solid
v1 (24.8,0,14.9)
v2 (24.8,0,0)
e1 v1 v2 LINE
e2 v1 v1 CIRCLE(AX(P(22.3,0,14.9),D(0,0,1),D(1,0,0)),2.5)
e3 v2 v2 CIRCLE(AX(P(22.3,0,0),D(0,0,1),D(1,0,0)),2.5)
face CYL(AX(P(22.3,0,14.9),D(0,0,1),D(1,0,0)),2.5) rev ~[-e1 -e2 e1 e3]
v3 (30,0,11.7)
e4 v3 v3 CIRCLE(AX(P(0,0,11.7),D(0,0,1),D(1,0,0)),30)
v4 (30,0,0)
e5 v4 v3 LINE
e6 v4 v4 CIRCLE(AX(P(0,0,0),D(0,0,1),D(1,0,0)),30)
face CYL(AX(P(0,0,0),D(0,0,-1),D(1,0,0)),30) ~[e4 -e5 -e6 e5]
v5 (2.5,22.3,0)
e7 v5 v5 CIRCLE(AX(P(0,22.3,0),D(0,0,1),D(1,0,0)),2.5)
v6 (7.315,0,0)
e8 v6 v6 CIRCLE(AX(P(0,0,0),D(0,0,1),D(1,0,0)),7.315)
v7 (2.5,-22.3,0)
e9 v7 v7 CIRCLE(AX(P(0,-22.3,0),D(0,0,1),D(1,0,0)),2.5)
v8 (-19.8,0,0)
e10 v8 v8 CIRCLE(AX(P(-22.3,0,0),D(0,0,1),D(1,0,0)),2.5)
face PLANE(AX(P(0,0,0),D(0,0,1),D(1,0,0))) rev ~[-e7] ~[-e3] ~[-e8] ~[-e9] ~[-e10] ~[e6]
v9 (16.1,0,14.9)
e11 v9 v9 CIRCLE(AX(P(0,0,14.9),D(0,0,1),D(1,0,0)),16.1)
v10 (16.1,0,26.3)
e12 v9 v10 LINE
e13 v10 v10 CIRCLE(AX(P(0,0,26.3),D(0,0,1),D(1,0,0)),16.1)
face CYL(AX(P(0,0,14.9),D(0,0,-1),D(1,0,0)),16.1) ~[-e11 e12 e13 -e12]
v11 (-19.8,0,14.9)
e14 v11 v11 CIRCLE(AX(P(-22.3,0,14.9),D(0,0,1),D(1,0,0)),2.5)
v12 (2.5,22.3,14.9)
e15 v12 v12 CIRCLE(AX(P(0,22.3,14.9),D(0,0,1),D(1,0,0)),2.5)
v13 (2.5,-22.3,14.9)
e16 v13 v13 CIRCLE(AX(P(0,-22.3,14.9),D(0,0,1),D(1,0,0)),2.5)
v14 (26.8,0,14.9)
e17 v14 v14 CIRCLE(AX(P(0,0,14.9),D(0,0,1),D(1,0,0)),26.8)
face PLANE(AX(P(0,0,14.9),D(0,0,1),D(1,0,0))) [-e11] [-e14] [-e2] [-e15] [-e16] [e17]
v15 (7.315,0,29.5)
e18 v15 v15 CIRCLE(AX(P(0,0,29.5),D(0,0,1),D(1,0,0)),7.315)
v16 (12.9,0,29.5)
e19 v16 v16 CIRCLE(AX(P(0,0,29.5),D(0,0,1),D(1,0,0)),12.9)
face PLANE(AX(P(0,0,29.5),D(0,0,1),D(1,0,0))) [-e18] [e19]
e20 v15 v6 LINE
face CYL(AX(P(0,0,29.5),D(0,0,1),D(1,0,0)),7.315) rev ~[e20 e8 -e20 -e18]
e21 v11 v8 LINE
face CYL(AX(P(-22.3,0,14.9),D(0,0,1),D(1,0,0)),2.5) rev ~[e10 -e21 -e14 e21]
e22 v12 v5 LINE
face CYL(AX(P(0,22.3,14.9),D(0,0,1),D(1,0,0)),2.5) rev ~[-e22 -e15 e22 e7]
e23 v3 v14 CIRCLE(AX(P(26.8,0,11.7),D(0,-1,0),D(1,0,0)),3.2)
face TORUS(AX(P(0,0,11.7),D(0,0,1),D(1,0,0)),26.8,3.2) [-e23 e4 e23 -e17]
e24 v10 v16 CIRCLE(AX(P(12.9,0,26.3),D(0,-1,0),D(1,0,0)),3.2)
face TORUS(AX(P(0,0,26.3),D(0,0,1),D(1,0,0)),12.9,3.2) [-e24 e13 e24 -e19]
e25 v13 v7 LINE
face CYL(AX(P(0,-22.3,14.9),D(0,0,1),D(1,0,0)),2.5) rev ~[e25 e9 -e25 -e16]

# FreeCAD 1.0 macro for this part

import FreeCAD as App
import Part
import Sketcher
from FreeCAD import Vector
Q = App.Units.Quantity


def edges_at(feature, points):
    """Names of the edges that pass closest to the given points."""
    edges = feature.Shape.Edges
    near = lambda p: min(range(len(edges)), key=lambda i: edges[i].distToShape(Part.Vertex(*p))[0])
    return sorted({f"Edge{near(p) + 1}" for p in points})

doc = App.newDocument("Part")
params = doc.addObject("Spreadsheet::Sheet", "Params")
for row, (alias, value) in enumerate([
    ("sketch1_diameter", "60 mm"),
    ("pad1_length", "14.9 mm"),
    ("sketch2_diameter", "32.2 mm"),
    ("pad2_length", "14.6 mm"),
    ("sketch3_diameter", "5 mm"),
    ("pocket1_length", "25 mm"),
    ("fillet_radius", "3.2 mm"),
    ("sketch4_diameter", "14.63 mm"),
    ("pocket2_length", "50 mm"),
], start=1):
    params.set(f"A{row}", alias)
    params.set(f"B{row}", "=" + value)
    params.setAlias(f"B{row}", alias)

body = doc.addObject("PartDesign::Body", "Body")

sketch1 = body.newObject("Sketcher::SketchObject", "Sketch")
sketch1.AttachmentSupport = (doc.getObject("XY_Plane"), [""])
sketch1.MapMode = "FlatFace"
sketch1.addGeometry(Part.Circle(Vector(0, 0, 0), Vector(0, 0, 1), 30), False)
sketch1.addConstraint([
    Sketcher.Constraint("Coincident", 0, 3, -1, 1),
    Sketcher.Constraint("Diameter", 0, Q("60 mm")),
])
sketch1.setExpression("Constraints[1]", "Params.sketch1_diameter")
pad1 = body.newObject("PartDesign::Pad", "Pad")
pad1.Profile = sketch1
pad1.setExpression("Length", "Params.pad1_length")

sketch2 = body.newObject("Sketcher::SketchObject", "Sketch001")
sketch2.AttachmentSupport = (doc.getObject("XY_Plane"), [""])
sketch2.MapMode = "FlatFace"
sketch2.AttachmentOffset = App.Placement(Vector(0, 0, 14.9), App.Rotation())
sketch2.addGeometry(Part.Circle(Vector(0, 0, 0), Vector(0, 0, 1), 16.1), False)
sketch2.addConstraint([
    Sketcher.Constraint("Coincident", 0, 3, -1, 1),
    Sketcher.Constraint("Diameter", 0, Q("32.2 mm")),
])
sketch2.setExpression("Constraints[1]", "Params.sketch2_diameter")
pad2 = body.newObject("PartDesign::Pad", "Pad001")
pad2.Profile = sketch2
pad2.setExpression("Length", "Params.pad2_length")

sketch3 = body.newObject("Sketcher::SketchObject", "Sketch002")
sketch3.AttachmentSupport = (doc.getObject("XY_Plane"), [""])
sketch3.MapMode = "FlatFace"
sketch3.AttachmentOffset = App.Placement(Vector(0, 0, 14.9), App.Rotation())
sketch3.addGeometry([
    Part.Circle(Vector(-22.3, 0, 0), Vector(0, 0, 1), 2.5),
    Part.Circle(Vector(0, 22.3, 0), Vector(0, 0, 1), 2.5),
    Part.Circle(Vector(22.3, 0, 0), Vector(0, 0, 1), 2.5),
    Part.Circle(Vector(0, -22.3, 0), Vector(0, 0, 1), 2.5),
], False)
sketch3.addConstraint([
    Sketcher.Constraint("Equal", 0, 1),
    Sketcher.Constraint("Equal", 1, 2),
    Sketcher.Constraint("Equal", 2, 3),
    Sketcher.Constraint("Symmetric", 0, 3, 2, 3, -1, 1),
    Sketcher.Constraint("Symmetric", 1, 3, 3, 3, -1, 1),
    Sketcher.Constraint("PointOnObject", 0, 3, -1),
    Sketcher.Constraint("PointOnObject", 1, 3, -2),
    Sketcher.Constraint("Diameter", 0, Q("5 mm")),
    Sketcher.Constraint("DistanceX", 0, 3, -1, 1, Q("22.3 mm")),
    Sketcher.Constraint("DistanceY", -1, 1, 1, 3, Q("22.3 mm")),
])
sketch3.setExpression("Constraints[7]", "Params.sketch3_diameter")
pocket1 = body.newObject("PartDesign::Pocket", "Pocket")
pocket1.Profile = sketch3
pocket1.setExpression("Length", "Params.pocket1_length")
doc.recompute()

fillet = body.newObject("PartDesign::Fillet", "Fillet")
fillet.Base = (pocket1, edges_at(pocket1, [(-30, 0, 14.9), (-16.1, 0, 29.5)]))
fillet.setExpression("Radius", "Params.fillet_radius")

sketch4 = body.newObject("Sketcher::SketchObject", "Sketch003")
sketch4.AttachmentSupport = (doc.getObject("XY_Plane"), [""])
sketch4.MapMode = "FlatFace"
sketch4.AttachmentOffset = App.Placement(Vector(0, 0, 29.5), App.Rotation())
sketch4.addGeometry(Part.Circle(Vector(0, 0, 0), Vector(0, 0, 1), 7.315), False)
sketch4.addConstraint([
    Sketcher.Constraint("Coincident", 0, 3, -1, 1),
    Sketcher.Constraint("Diameter", 0, Q("14.63 mm")),
])
sketch4.setExpression("Constraints[1]", "Params.sketch4_diameter")
pocket2 = body.newObject("PartDesign::Pocket", "Pocket001")
pocket2.Profile = sketch4
pocket2.setExpression("Length", "Params.pocket2_length")

doc.recompute()
